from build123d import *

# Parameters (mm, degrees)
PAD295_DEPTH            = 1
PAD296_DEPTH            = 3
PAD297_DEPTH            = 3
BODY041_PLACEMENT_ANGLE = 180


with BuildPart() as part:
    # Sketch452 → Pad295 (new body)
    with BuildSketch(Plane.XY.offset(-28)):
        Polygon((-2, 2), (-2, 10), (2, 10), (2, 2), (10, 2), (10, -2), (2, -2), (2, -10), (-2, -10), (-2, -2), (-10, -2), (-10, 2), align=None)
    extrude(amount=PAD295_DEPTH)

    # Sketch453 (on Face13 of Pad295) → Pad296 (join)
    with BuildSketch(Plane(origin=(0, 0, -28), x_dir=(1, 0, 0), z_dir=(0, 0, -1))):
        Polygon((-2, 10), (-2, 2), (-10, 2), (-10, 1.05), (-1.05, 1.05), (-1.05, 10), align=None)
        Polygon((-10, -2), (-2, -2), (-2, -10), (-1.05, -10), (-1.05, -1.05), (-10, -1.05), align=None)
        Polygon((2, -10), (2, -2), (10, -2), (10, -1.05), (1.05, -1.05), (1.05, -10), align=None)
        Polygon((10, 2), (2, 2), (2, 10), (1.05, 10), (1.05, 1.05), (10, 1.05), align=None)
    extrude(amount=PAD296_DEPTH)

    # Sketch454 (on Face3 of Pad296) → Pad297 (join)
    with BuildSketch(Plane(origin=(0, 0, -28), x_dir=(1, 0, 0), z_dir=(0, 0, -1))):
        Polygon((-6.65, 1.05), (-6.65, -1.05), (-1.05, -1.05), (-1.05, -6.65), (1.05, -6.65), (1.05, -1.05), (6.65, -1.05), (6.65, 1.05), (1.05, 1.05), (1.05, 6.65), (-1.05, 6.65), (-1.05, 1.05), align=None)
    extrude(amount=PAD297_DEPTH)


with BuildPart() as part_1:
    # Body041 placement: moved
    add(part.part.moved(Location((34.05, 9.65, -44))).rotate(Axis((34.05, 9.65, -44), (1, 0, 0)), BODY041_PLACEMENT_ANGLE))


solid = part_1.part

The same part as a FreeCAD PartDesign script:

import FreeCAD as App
import Part
import Sketcher

V = App.Vector
Q = App.Units.Quantity

doc = App.newDocument("Part")
body = doc.addObject("PartDesign::Body", "Body")

# Sketch on XY plane
sketch1 = body.newObject("Sketcher::SketchObject", "Sketch")
sketch1.AttachmentSupport = (doc.getObject("XY_Plane"), [""])
sketch1.MapMode = "FlatFace"
sketch1.AttachmentOffset = App.Placement(V(0, 0, -28), App.Rotation())
sketch1.addGeometry([
    Part.LineSegment(V(-2, 10, 0), V(-2, 2, 0)),  # 0
    Part.LineSegment(V(-2, 2, 0), V(-10, 2, 0)),  # 1
    Part.LineSegment(V(-10, 2, 0), V(-10, -2, 0)),  # 2
    Part.LineSegment(V(-10, -2, 0), V(-2, -2, 0)),  # 3
    Part.LineSegment(V(-2, -2, 0), V(-2, -10, 0)),  # 4
    Part.LineSegment(V(-2, -10, 0), V(2, -10, 0)),  # 5
    Part.LineSegment(V(2, -10, 0), V(2, -2, 0)),  # 6
    Part.LineSegment(V(2, -2, 0), V(10, -2, 0)),  # 7
    Part.LineSegment(V(10, -2, 0), V(10, 2, 0)),  # 8
    Part.LineSegment(V(10, 2, 0), V(2, 2, 0)),  # 9
    Part.LineSegment(V(2, 2, 0), V(2, 10, 0)),  # 10
    Part.LineSegment(V(2, 10, 0), V(-2, 10, 0)),  # 11
], False)
sketch1.addConstraint([
    Sketcher.Constraint("Coincident", 0, 2, 1, 1),
    Sketcher.Constraint("Coincident", 1, 2, 2, 1),
    Sketcher.Constraint("Coincident", 2, 2, 3, 1),
    Sketcher.Constraint("Coincident", 3, 2, 4, 1),
    Sketcher.Constraint("Coincident", 4, 2, 5, 1),
    Sketcher.Constraint("Coincident", 5, 2, 6, 1),
    Sketcher.Constraint("Coincident", 6, 2, 7, 1),
    Sketcher.Constraint("Coincident", 7, 2, 8, 1),
    Sketcher.Constraint("Coincident", 8, 2, 9, 1),
    Sketcher.Constraint("Coincident", 9, 2, 10, 1),
    Sketcher.Constraint("Coincident", 10, 2, 11, 1),
    Sketcher.Constraint("Coincident", 11, 2, 0, 1),
    Sketcher.Constraint("Vertical", 0),
    Sketcher.Constraint("Horizontal", 1),
    Sketcher.Constraint("Vertical", 2),
    Sketcher.Constraint("Horizontal", 3),
    Sketcher.Constraint("Vertical", 4),
    Sketcher.Constraint("Horizontal", 5),
    Sketcher.Constraint("Vertical", 6),
    Sketcher.Constraint("Horizontal", 7),
    Sketcher.Constraint("Vertical", 8),
    Sketcher.Constraint("Horizontal", 9),
    Sketcher.Constraint("Vertical", 10),
    Sketcher.Constraint("Horizontal", 11),
    Sketcher.Constraint("Symmetric", 0, 2, 6, 2, -1, 1),
    Sketcher.Constraint("Symmetric", 2, 2, 8, 2, -1, 1),
    Sketcher.Constraint("Symmetric", 4, 2, 10, 2, -1, 1),
    Sketcher.Constraint("Symmetric", 3, 2, 6, 2, -2),
    Sketcher.Constraint("Equal", 9, 0),
    Sketcher.Constraint("Equal", 11, 2),
    Sketcher.Constraint("DistanceX", 1, 2, 1, 1, Q("8 mm")),
    Sketcher.Constraint("DistanceX", 5, 1, 5, 2, Q("4 mm")),
])
pad1 = body.newObject("PartDesign::Pad", "Pad")
pad1.Profile = sketch1
pad1.Length = 1

# Sketch on XY plane
sketch2 = body.newObject("Sketcher::SketchObject", "Sketch001")
sketch2.AttachmentSupport = (doc.getObject("XY_Plane"), [""])
sketch2.MapMode = "FlatFace"
sketch2.AttachmentOffset = App.Placement(V(0, 0, -28), App.Rotation())
sketch2.addGeometry([
    Part.LineSegment(V(-2, -10, 0), V(-2, -2, 0)),  # 0
    Part.LineSegment(V(-2, -2, 0), V(-10, -2, 0)),  # 1
    Part.LineSegment(V(-10, -2, 0), V(-10, -1.05, 0)),  # 2
    Part.LineSegment(V(-10, -1.05, 0), V(-1.05, -1.05, 0)),  # 3
    Part.LineSegment(V(-1.05, -1.05, 0), V(-1.05, -10, 0)),  # 4
    Part.LineSegment(V(-1.05, -10, 0), V(-2, -10, 0)),  # 5
    Part.LineSegment(V(-10, 2, 0), V(-2, 2, 0)),  # 6
    Part.LineSegment(V(-2, 2, 0), V(-2, 10, 0)),  # 7
    Part.LineSegment(V(-2, 10, 0), V(-1.05, 10, 0)),  # 8
    Part.LineSegment(V(-1.05, 10, 0), V(-1.05, 1.05, 0)),  # 9
    Part.LineSegment(V(-1.05, 1.05, 0), V(-10, 1.05, 0)),  # 10
    Part.LineSegment(V(-10, 1.05, 0), V(-10, 2, 0)),  # 11
    Part.LineSegment(V(2, 10, 0), V(2, 2, 0)),  # 12
    Part.LineSegment(V(2, 2, 0), V(10, 2, 0)),  # 13
    Part.LineSegment(V(10, 2, 0), V(10, 1.05, 0)),  # 14
    Part.LineSegment(V(10, 1.05, 0), V(1.05, 1.05, 0)),  # 15
    Part.LineSegment(V(1.05, 1.05, 0), V(1.05, 10, 0)),  # 16
    Part.LineSegment(V(1.05, 10, 0), V(2, 10, 0)),  # 17
    Part.LineSegment(V(10, -2, 0), V(2, -2, 0)),  # 18
    Part.LineSegment(V(2, -2, 0), V(2, -10, 0)),  # 19
    Part.LineSegment(V(2, -10, 0), V(1.05, -10, 0)),  # 20
    Part.LineSegment(V(1.05, -10, 0), V(1.05, -1.05, 0)),  # 21
    Part.LineSegment(V(1.05, -1.05, 0), V(10, -1.05, 0)),  # 22
    Part.LineSegment(V(10, -1.05, 0), V(10, -2, 0)),  # 23
], False)
sketch2.addConstraint([
    Sketcher.Constraint("Coincident", 0, 2, 1, 1),
    Sketcher.Constraint("Coincident", 1, 2, 2, 1),
    Sketcher.Constraint("Coincident", 2, 2, 3, 1),
    Sketcher.Constraint("Coincident", 3, 2, 4, 1),
    Sketcher.Constraint("Coincident", 4, 2, 5, 1),
    Sketcher.Constraint("Coincident", 5, 2, 0, 1),
    Sketcher.Constraint("Coincident", 6, 2, 7, 1),
    Sketcher.Constraint("Coincident", 7, 2, 8, 1),
    Sketcher.Constraint("Coincident", 8, 2, 9, 1),
    Sketcher.Constraint("Coincident", 9, 2, 10, 1),
    Sketcher.Constraint("Coincident", 10, 2, 11, 1),
    Sketcher.Constraint("Coincident", 11, 2, 6, 1),
    Sketcher.Constraint("Coincident", 12, 2, 13, 1),
    Sketcher.Constraint("Coincident", 13, 2, 14, 1),
    Sketcher.Constraint("Coincident", 14, 2, 15, 1),
    Sketcher.Constraint("Coincident", 15, 2, 16, 1),
    Sketcher.Constraint("Coincident", 16, 2, 17, 1),
    Sketcher.Constraint("Coincident", 17, 2, 12, 1),
    Sketcher.Constraint("Coincident", 18, 2, 19, 1),
    Sketcher.Constraint("Coincident", 19, 2, 20, 1),
    Sketcher.Constraint("Coincident", 20, 2, 21, 1),
    Sketcher.Constraint("Coincident", 21, 2, 22, 1),
    Sketcher.Constraint("Coincident", 22, 2, 23, 1),
    Sketcher.Constraint("Coincident", 23, 2, 18, 1),
    Sketcher.Constraint("Vertical", 0),
    Sketcher.Constraint("Horizontal", 1),
    Sketcher.Constraint("Vertical", 2),
    Sketcher.Constraint("Horizontal", 3),
    Sketcher.Constraint("Vertical", 4),
    Sketcher.Constraint("Horizontal", 5),
    Sketcher.Constraint("Horizontal", 6),
    Sketcher.Constraint("Vertical", 7),
    Sketcher.Constraint("Horizontal", 8),
    Sketcher.Constraint("Vertical", 9),
    Sketcher.Constraint("Horizontal", 10),
    Sketcher.Constraint("Vertical", 11),
    Sketcher.Constraint("Vertical", 12),
    Sketcher.Constraint("Horizontal", 13),
    Sketcher.Constraint("Vertical", 14),
    Sketcher.Constraint("Horizontal", 15),
    Sketcher.Constraint("Vertical", 16),
    Sketcher.Constraint("Horizontal", 17),
    Sketcher.Constraint("Horizontal", 18),
    Sketcher.Constraint("Vertical", 19),
    Sketcher.Constraint("Horizontal", 20),
    Sketcher.Constraint("Vertical", 21),
    Sketcher.Constraint("Horizontal", 22),
    Sketcher.Constraint("Vertical", 23),
    Sketcher.Constraint("Symmetric", 0, 2, 12, 2, -1, 1),
    Sketcher.Constraint("Symmetric", 2, 2, 14, 2, -1, 1),
    Sketcher.Constraint("Symmetric", 4, 2, 16, 2, -1, 1),
    Sketcher.Constraint("Symmetric", 6, 2, 18, 2, -1, 1),
    Sketcher.Constraint("Symmetric", 8, 2, 20, 2, -1, 1),
    Sketcher.Constraint("Symmetric", 10, 2, 22, 2, -1, 1),
    Sketcher.Constraint("Symmetric", 6, 2, 12, 2, -2),
    Sketcher.Constraint("Symmetric", 10, 2, 14, 2, -2),
    Sketcher.Constraint("Symmetric", 8, 2, 16, 2, -2),
    Sketcher.Constraint("Equal", 18, 0),
    Sketcher.Constraint("Equal", 20, 2),
    Sketcher.Constraint("DistanceX", 1, 2, 1, 1, Q("8 mm")),
    Sketcher.Constraint("DistanceX", 0, 2, -1, 1, Q("2 mm")),
    Sketcher.Constraint("DistanceY", 0, 2, -1, 1, Q("2 mm")),
    Sketcher.Constraint("DistanceX", 3, 1, 3, 2, Q("8.95 mm")),
])
pad2 = body.newObject("PartDesign::Pad", "Pad001")
pad2.Profile = sketch2
pad2.Length = 3
pad2.Reversed = True

# Sketch on XY plane
sketch3 = body.newObject("Sketcher::SketchObject", "Sketch002")
sketch3.AttachmentSupport = (doc.getObject("XY_Plane"), [""])
sketch3.MapMode = "FlatFace"
sketch3.AttachmentOffset = App.Placement(V(0, 0, -28), App.Rotation())
sketch3.addGeometry([
    Part.LineSegment(V(-6.65, -1.05, 0), V(-6.65, 1.05, 0)),  # 0
    Part.LineSegment(V(-6.65, 1.05, 0), V(-1.05, 1.05, 0)),  # 1
    Part.LineSegment(V(-1.05, 1.05, 0), V(-1.05, 6.65, 0)),  # 2
    Part.LineSegment(V(-1.05, 6.65, 0), V(1.05, 6.65, 0)),  # 3
    Part.LineSegment(V(1.05, 6.65, 0), V(1.05, 1.05, 0)),  # 4
    Part.LineSegment(V(1.05, 1.05, 0), V(6.65, 1.05, 0)),  # 5
    Part.LineSegment(V(6.65, 1.05, 0), V(6.65, -1.05, 0)),  # 6
    Part.LineSegment(V(6.65, -1.05, 0), V(1.05, -1.05, 0)),  # 7
    Part.LineSegment(V(1.05, -1.05, 0), V(1.05, -6.65, 0)),  # 8
    Part.LineSegment(V(1.05, -6.65, 0), V(-1.05, -6.65, 0)),  # 9
    Part.LineSegment(V(-1.05, -6.65, 0), V(-1.05, -1.05, 0)),  # 10
    Part.LineSegment(V(-1.05, -1.05, 0), V(-6.65, -1.05, 0)),  # 11
], False)
sketch3.addConstraint([
    Sketcher.Constraint("Coincident", 0, 2, 1, 1),
    Sketcher.Constraint("Coincident", 1, 2, 2, 1),
    Sketcher.Constraint("Coincident", 2, 2, 3, 1),
    Sketcher.Constraint("Coincident", 3, 2, 4, 1),
    Sketcher.Constraint("Coincident", 4, 2, 5, 1),
    Sketcher.Constraint("Coincident", 5, 2, 6, 1),
    Sketcher.Constraint("Coincident", 6, 2, 7, 1),
    Sketcher.Constraint("Coincident", 7, 2, 8, 1),
    Sketcher.Constraint("Coincident", 8, 2, 9, 1),
    Sketcher.Constraint("Coincident", 9, 2, 10, 1),
    Sketcher.Constraint("Coincident", 10, 2, 11, 1),
    Sketcher.Constraint("Coincident", 11, 2, 0, 1),
    Sketcher.Constraint("Vertical", 0),
    Sketcher.Constraint("Horizontal", 1),
    Sketcher.Constraint("Vertical", 2),
    Sketcher.Constraint("Horizontal", 3),
    Sketcher.Constraint("Vertical", 4),
    Sketcher.Constraint("Horizontal", 5),
    Sketcher.Constraint("Vertical", 6),
    Sketcher.Constraint("Horizontal", 7),
    Sketcher.Constraint("Vertical", 8),
    Sketcher.Constraint("Horizontal", 9),
    Sketcher.Constraint("Vertical", 10),
    Sketcher.Constraint("Horizontal", 11),
    Sketcher.Constraint("Symmetric", 0, 2, 6, 2, -1, 1),
    Sketcher.Constraint("Symmetric", 2, 2, 8, 2, -1, 1),
    Sketcher.Constraint("Symmetric", 4, 2, 10, 2, -1, 1),
    Sketcher.Constraint("Symmetric", 1, 2, 4, 2, -2),
    Sketcher.Constraint("Equal", 9, 0),
    Sketcher.Constraint("Equal", 11, 2),
    Sketcher.Constraint("DistanceX", 1, 1, 1, 2, Q("5.6 mm")),
    Sketcher.Constraint("DistanceX", 3, 1, 3, 2, Q("2.1 mm")),
])
pad3 = body.newObject("PartDesign::Pad", "Pad002")
pad3.Profile = sketch3
pad3.Length = 3
pad3.Reversed = True
body2 = doc.addObject("PartDesign::Body", "Body001")
doc.recompute()

body.Placement = App.Placement(V(34.05, 9.65, -44), App.Rotation(V(1, 0, 0), 180))
boolean = body2.newObject("PartDesign::Boolean", "Boolean")
boolean.Type = "Fuse"
boolean.addObjects([body])

doc.recompute()
